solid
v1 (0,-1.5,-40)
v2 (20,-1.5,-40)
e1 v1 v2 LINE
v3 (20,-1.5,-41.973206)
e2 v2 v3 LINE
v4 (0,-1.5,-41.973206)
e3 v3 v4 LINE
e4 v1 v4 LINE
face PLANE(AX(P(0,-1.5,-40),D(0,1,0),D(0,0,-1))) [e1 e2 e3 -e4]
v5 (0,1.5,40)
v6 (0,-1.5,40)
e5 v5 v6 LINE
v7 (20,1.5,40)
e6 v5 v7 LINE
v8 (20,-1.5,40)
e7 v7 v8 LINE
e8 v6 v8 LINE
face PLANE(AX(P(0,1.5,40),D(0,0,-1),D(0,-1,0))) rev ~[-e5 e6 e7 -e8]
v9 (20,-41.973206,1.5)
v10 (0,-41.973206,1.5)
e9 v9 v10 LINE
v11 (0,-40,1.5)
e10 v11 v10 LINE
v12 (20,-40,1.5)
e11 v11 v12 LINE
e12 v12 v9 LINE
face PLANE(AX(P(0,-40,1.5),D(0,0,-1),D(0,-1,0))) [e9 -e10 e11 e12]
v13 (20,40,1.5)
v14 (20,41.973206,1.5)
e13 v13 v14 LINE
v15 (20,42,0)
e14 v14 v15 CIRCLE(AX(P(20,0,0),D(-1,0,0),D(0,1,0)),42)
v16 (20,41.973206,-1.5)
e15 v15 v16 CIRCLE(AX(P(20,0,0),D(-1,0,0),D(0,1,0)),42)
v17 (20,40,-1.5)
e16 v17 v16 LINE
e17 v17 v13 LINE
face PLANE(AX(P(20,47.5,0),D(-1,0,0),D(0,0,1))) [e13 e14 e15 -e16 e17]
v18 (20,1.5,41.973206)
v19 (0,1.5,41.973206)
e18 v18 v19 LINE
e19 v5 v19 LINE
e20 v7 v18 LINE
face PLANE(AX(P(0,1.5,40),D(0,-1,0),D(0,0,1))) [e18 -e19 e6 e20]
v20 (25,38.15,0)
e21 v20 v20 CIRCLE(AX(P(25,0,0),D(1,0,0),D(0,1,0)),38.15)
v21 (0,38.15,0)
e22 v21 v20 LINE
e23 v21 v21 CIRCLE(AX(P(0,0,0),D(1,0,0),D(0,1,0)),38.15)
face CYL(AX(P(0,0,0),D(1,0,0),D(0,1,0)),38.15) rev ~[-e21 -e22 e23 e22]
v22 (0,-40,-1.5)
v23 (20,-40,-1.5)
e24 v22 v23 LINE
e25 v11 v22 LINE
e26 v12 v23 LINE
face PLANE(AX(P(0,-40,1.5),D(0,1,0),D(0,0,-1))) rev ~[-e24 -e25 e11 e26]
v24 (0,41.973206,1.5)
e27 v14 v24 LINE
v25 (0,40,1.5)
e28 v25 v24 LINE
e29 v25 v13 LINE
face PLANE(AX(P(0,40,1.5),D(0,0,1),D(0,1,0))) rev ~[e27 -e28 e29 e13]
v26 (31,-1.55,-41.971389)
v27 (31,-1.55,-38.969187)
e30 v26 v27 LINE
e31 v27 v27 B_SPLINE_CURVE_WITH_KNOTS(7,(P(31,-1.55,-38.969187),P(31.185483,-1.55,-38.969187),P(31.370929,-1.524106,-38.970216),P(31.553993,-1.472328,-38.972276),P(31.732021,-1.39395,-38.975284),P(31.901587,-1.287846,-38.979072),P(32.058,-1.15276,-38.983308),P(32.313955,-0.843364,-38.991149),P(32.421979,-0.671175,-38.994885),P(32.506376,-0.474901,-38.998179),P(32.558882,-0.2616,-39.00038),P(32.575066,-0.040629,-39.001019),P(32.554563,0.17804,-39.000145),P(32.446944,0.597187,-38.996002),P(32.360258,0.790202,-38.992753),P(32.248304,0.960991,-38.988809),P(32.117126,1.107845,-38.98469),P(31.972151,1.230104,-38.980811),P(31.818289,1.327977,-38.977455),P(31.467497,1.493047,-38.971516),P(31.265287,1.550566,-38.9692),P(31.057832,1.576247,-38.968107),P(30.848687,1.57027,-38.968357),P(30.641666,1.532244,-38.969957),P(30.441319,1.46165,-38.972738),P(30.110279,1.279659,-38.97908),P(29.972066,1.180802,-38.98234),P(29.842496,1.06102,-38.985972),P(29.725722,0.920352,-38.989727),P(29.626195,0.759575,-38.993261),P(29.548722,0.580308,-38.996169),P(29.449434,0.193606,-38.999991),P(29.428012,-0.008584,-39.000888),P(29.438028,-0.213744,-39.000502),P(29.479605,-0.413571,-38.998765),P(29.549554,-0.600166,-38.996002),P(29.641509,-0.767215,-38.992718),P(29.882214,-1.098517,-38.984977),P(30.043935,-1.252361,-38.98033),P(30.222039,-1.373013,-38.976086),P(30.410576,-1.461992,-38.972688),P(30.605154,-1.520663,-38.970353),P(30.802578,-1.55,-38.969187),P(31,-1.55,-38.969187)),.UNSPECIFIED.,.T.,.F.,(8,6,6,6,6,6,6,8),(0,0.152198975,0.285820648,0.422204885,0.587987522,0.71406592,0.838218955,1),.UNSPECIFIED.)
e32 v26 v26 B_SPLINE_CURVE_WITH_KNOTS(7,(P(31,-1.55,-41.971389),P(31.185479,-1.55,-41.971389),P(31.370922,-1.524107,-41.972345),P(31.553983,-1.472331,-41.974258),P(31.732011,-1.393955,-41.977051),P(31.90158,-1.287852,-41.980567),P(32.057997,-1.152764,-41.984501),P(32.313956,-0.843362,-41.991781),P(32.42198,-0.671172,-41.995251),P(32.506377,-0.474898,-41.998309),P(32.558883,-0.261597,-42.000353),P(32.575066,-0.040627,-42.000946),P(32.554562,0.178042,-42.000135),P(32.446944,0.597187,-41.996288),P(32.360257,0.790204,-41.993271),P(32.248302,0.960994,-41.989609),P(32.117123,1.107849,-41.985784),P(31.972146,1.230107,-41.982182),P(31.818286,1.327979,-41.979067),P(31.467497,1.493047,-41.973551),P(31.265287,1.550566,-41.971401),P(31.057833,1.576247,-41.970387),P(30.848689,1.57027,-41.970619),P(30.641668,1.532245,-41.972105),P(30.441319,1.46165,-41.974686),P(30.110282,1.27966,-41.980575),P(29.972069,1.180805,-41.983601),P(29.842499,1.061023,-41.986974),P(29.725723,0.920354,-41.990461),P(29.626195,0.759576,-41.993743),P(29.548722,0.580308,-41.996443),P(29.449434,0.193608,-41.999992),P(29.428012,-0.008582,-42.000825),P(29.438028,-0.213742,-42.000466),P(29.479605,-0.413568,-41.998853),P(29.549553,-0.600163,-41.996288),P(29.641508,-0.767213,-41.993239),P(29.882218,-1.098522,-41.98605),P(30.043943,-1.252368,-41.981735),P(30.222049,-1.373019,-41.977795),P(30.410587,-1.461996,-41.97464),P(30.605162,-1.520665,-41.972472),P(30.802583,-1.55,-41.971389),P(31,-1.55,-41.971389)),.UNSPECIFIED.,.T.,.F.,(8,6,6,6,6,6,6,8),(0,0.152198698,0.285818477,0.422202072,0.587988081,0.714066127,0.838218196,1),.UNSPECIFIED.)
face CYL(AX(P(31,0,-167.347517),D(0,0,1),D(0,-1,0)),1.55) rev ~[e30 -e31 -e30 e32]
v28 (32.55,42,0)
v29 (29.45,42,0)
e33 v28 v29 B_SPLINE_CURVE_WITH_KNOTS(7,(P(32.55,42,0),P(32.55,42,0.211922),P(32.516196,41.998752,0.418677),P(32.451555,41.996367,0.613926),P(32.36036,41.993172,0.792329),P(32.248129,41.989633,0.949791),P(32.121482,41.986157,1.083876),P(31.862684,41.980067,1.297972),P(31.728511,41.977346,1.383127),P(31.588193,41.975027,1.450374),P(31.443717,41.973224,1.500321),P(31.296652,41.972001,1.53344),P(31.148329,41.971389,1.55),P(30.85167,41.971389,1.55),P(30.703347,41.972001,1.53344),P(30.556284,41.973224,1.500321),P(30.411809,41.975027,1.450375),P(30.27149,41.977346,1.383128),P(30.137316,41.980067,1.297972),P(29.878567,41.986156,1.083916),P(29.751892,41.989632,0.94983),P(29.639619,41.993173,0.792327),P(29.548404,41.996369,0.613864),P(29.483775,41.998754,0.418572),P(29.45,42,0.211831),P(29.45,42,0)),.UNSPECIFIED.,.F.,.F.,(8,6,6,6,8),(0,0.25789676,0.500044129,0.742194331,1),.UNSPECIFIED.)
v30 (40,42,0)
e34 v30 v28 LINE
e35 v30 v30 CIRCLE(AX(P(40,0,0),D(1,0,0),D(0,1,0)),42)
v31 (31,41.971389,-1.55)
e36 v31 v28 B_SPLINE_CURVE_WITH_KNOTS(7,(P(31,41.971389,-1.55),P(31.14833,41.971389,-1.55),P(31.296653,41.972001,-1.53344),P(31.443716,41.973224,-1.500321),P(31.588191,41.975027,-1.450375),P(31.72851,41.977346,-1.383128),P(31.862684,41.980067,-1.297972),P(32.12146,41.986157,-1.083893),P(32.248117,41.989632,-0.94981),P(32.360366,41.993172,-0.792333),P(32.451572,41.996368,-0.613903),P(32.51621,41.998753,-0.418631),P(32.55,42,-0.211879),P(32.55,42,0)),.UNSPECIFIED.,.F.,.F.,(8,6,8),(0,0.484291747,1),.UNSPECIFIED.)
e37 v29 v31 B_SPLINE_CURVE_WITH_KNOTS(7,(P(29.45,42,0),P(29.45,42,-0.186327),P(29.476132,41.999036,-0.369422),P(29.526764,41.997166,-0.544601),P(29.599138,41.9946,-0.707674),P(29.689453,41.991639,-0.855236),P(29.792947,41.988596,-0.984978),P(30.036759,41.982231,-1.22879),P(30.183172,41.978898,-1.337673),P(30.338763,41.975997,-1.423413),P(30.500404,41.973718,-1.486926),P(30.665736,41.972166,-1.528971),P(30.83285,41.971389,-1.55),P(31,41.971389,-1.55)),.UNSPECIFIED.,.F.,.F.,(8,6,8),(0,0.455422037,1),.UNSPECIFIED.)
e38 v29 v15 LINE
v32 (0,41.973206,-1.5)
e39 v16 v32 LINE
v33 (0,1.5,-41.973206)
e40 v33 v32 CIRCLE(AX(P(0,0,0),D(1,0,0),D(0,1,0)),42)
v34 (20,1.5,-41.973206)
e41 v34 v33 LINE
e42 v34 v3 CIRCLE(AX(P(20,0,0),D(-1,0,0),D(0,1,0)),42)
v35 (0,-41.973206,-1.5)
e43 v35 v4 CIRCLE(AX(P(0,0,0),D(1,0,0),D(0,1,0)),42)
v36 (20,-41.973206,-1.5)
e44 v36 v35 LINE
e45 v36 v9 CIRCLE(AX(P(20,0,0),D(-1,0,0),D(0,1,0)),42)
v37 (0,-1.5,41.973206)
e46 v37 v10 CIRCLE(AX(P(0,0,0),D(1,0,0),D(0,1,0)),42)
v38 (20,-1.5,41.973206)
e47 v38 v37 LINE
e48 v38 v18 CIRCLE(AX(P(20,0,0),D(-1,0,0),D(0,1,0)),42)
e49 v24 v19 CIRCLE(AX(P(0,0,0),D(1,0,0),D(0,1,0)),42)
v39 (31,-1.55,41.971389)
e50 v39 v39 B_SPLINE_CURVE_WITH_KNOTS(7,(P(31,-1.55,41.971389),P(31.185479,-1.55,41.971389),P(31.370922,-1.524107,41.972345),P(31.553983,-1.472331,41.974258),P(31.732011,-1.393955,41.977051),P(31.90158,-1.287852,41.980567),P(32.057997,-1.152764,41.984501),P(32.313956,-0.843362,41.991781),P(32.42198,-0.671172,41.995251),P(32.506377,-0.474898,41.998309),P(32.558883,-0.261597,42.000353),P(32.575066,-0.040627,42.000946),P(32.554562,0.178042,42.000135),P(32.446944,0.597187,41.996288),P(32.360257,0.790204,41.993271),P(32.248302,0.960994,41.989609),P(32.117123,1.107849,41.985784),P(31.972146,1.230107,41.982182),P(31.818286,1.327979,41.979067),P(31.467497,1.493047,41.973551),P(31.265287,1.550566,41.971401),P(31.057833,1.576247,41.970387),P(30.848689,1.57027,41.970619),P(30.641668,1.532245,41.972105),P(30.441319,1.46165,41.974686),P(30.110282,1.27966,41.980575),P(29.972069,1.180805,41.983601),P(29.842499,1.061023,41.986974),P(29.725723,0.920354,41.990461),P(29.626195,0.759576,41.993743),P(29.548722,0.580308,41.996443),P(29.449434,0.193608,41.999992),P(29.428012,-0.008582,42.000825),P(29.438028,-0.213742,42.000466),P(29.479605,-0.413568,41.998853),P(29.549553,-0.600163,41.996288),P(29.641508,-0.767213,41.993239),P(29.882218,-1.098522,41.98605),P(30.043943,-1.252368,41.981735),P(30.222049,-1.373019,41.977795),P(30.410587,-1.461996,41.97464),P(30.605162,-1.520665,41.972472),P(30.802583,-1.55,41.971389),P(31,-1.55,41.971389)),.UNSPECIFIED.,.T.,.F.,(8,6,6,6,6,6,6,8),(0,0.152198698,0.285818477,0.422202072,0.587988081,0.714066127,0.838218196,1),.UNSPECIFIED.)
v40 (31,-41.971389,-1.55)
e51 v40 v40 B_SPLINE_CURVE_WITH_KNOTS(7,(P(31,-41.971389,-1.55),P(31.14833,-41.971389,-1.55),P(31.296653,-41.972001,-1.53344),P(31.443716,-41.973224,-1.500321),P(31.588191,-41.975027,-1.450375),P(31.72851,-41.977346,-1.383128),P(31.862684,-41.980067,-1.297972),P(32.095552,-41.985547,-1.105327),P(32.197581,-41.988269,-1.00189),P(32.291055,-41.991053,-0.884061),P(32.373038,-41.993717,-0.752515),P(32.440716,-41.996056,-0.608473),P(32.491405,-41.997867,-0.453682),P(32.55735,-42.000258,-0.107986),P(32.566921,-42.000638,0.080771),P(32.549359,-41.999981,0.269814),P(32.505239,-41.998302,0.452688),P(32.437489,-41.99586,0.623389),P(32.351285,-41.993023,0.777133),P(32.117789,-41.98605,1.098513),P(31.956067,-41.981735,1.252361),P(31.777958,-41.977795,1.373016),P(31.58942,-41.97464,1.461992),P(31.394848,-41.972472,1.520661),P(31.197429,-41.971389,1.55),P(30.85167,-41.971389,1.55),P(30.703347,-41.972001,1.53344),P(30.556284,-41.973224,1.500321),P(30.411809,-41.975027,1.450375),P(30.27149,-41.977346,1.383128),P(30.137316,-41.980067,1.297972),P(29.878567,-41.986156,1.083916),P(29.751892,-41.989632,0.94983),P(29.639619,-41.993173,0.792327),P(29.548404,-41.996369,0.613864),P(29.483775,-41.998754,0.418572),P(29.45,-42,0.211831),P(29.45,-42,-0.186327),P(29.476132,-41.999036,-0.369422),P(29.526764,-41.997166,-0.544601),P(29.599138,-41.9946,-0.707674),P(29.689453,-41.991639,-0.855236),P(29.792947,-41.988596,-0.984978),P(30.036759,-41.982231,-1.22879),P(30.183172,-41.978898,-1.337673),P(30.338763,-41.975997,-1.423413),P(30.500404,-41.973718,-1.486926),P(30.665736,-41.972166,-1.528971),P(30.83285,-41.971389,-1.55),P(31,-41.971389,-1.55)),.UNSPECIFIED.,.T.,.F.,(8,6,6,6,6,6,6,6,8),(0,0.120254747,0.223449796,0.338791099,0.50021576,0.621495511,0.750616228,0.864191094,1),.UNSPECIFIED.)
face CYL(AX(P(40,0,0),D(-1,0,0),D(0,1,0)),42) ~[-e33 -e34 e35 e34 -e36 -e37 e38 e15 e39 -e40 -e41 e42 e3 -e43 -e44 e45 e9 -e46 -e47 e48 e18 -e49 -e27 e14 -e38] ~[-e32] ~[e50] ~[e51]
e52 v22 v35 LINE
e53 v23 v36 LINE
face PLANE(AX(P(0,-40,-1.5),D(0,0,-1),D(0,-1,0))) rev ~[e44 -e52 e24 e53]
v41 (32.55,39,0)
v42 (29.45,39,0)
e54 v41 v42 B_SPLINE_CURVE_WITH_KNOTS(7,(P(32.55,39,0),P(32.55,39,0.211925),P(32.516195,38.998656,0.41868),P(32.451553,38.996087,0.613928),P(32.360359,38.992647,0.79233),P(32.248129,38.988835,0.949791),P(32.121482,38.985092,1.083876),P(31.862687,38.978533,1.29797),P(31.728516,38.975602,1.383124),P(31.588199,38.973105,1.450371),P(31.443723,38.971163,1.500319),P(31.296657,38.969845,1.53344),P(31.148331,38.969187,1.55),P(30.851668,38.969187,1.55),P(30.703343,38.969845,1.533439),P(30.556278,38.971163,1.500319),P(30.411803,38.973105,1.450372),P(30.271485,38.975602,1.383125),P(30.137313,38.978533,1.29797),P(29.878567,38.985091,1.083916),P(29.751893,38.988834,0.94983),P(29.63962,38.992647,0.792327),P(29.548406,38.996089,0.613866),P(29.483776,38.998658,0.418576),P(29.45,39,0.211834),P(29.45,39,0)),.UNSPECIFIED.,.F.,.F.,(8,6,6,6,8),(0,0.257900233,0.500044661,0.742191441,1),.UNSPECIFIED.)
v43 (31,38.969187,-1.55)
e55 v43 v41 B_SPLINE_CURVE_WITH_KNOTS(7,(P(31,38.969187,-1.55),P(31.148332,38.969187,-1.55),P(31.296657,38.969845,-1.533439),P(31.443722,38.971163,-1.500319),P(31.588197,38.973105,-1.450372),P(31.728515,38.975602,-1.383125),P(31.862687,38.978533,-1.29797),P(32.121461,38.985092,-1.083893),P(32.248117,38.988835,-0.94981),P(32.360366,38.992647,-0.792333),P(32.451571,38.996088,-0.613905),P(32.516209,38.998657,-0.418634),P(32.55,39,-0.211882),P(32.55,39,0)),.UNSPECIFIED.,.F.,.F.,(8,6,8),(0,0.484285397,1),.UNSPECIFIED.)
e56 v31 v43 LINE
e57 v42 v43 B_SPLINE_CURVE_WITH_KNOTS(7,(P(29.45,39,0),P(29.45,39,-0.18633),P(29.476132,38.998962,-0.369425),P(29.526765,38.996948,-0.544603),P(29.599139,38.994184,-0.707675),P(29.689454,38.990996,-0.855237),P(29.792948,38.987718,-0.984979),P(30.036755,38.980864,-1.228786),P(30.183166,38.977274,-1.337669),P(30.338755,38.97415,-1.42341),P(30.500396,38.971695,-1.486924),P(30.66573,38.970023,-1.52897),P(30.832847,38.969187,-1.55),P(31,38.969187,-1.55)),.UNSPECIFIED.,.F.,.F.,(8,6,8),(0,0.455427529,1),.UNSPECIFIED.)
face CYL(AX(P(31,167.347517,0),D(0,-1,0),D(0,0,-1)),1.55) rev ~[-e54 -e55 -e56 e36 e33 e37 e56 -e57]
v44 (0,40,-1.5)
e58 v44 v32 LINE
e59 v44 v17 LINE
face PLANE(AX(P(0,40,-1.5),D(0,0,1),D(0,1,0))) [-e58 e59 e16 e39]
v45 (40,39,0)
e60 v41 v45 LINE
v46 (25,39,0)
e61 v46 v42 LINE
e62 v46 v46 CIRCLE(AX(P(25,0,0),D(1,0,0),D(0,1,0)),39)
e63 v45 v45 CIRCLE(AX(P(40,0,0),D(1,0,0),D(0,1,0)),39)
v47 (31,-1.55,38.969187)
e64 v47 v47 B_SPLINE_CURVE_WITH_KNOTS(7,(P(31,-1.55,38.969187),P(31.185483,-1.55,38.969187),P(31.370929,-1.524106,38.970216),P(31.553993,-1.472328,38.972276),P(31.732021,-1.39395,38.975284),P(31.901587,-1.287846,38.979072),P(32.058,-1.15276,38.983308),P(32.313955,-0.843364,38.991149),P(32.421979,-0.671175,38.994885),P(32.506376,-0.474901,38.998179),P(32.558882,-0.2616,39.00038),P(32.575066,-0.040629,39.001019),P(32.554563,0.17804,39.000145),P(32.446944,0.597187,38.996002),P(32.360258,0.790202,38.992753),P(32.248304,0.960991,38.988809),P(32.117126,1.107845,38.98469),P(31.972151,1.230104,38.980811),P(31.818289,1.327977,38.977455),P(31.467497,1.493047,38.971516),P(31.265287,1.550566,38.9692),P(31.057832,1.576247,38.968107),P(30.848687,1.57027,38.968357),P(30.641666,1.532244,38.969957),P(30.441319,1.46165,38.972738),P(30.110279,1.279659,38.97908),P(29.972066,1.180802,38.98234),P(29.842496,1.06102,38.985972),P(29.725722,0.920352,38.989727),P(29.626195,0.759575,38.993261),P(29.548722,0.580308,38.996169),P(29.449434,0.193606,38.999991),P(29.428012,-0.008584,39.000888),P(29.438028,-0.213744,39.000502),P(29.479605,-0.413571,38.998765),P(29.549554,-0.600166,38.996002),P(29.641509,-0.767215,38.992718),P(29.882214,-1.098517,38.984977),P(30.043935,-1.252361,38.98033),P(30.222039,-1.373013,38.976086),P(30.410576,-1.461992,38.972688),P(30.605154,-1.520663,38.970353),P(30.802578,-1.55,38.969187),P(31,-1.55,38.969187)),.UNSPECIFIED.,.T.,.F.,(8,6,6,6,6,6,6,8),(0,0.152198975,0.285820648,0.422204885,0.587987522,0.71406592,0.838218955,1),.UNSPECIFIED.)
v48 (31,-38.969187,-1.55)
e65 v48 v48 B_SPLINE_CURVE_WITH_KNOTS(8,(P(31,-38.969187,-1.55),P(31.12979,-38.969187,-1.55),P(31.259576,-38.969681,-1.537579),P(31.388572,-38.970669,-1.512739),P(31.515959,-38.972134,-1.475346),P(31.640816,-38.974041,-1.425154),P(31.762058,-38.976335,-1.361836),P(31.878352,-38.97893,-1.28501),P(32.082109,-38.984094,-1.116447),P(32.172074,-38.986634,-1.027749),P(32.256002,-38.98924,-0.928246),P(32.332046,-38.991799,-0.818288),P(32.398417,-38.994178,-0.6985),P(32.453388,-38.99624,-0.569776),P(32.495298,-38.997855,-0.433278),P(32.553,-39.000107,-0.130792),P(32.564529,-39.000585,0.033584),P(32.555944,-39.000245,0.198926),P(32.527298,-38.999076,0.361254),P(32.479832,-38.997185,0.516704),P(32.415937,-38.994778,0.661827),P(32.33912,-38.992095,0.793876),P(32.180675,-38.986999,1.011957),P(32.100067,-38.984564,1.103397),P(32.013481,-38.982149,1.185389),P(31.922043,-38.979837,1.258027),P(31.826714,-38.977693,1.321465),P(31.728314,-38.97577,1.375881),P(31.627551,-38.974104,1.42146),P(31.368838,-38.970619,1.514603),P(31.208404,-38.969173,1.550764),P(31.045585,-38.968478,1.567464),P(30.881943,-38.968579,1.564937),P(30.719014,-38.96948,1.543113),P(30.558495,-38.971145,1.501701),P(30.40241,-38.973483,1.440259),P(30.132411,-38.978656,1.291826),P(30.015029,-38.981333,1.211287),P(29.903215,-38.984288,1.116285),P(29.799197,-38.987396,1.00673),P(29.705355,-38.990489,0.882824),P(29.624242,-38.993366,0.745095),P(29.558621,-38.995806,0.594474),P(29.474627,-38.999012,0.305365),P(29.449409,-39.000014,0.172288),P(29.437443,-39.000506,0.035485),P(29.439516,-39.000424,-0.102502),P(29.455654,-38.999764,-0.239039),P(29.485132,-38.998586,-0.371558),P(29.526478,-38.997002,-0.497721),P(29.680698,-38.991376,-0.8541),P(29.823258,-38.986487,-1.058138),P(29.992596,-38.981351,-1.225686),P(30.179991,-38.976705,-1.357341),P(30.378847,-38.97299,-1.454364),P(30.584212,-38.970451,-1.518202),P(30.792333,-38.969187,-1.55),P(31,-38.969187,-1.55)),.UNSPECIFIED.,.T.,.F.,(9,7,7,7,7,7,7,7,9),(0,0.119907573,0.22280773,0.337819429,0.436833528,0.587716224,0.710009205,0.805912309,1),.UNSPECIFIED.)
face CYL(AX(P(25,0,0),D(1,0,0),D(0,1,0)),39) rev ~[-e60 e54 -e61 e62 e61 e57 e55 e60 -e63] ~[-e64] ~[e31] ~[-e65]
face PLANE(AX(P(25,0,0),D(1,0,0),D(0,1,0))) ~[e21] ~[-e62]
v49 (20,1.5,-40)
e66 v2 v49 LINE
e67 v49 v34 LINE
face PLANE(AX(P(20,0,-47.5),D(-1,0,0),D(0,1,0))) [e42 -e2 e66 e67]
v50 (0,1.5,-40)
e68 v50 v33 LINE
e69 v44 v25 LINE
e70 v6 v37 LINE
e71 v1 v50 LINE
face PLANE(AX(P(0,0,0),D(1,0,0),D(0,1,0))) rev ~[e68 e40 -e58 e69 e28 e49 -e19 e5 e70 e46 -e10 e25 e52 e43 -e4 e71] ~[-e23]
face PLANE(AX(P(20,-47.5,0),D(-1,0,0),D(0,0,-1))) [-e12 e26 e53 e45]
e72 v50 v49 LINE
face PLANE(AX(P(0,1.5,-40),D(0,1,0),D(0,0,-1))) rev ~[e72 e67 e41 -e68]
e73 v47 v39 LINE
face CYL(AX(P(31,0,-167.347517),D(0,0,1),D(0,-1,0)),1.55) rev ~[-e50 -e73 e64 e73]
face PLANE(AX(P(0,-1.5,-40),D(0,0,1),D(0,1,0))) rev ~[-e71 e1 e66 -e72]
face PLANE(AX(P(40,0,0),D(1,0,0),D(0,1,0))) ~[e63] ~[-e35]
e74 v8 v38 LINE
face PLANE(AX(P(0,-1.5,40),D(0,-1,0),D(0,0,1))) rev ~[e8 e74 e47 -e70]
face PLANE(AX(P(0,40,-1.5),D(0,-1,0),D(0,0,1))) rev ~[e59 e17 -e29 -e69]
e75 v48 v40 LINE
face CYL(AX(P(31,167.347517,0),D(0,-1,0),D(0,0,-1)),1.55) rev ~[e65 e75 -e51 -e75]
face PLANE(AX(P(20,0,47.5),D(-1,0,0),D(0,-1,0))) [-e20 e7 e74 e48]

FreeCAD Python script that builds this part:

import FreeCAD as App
import Part
import Sketcher
from FreeCAD import Vector

doc = App.newDocument("Part")
body = doc.addObject("PartDesign::Body", "Body")

sketch1 = doc.addObject("Sketcher::SketchObject", "Sketch")
body.addObject(sketch1)
sketch1.AttachmentSupport = (doc.XY_Plane, [""])
sketch1.MapMode = "FlatFace"
sketch1.addGeometry(Part.LineSegment(Vector(0, 38.1, 0), Vector(25, 38.1, 0)), False)
sketch1.addGeometry(Part.LineSegment(Vector(25, 38.1, 0), Vector(25, 39, 0)), False)
sketch1.addGeometry(Part.LineSegment(Vector(25, 39, 0), Vector(40, 39, 0)), False)
sketch1.addGeometry(Part.LineSegment(Vector(40, 39, 0), Vector(40, 42, 0)), False)
sketch1.addGeometry(Part.LineSegment(Vector(40, 42, 0), Vector(0, 42, 0)), False)
sketch1.addGeometry(Part.LineSegment(Vector(0, 42, 0), Vector(0, 38.1, 0)), False)
sketch1.addConstraint(Sketcher.Constraint("Coincident", 0, 2, 1, 1))
sketch1.addConstraint(Sketcher.Constraint("Coincident", 1, 2, 2, 1))
sketch1.addConstraint(Sketcher.Constraint("Coincident", 2, 2, 3, 1))
sketch1.addConstraint(Sketcher.Constraint("Coincident", 3, 2, 4, 1))
sketch1.addConstraint(Sketcher.Constraint("Coincident", 4, 2, 5, 1))
sketch1.addConstraint(Sketcher.Constraint("Coincident", 5, 2, 0, 1))
sketch1.addConstraint(Sketcher.Constraint("Horizontal", 0))
sketch1.addConstraint(Sketcher.Constraint("Vertical", 1))
sketch1.addConstraint(Sketcher.Constraint("Horizontal", 2))
sketch1.addConstraint(Sketcher.Constraint("Vertical", 3))
sketch1.addConstraint(Sketcher.Constraint("Horizontal", 4))
sketch1.addConstraint(Sketcher.Constraint("Vertical", 5))
sketch1.addConstraint(Sketcher.Constraint("PointOnObject", 4, 2, -2))
sketch1.addConstraint(Sketcher.Constraint("DistanceX", 0, 1, 0, 2, 25.0))
sketch1.addConstraint(Sketcher.Constraint("DistanceX", 2, 1, 2, 2, 15.0))
sketch1.addConstraint(Sketcher.Constraint("DistanceY", 3, 1, 3, 2, 3.0))
sketch1.addConstraint(Sketcher.Constraint("DistanceY", -1, 1, 1, 2, 39.0))
sketch1.addConstraint(Sketcher.Constraint("DistanceY", 1, 1, 1, 2, 0.85))
revolution = doc.addObject("PartDesign::Revolution", "Revolution")
body.addObject(revolution)
revolution.Profile = sketch1
revolution.ReferenceAxis = (sketch1, ["H_Axis"])
revolution.Angle = 360

sketch2 = doc.addObject("Sketcher::SketchObject", "Sketch001")
body.addObject(sketch2)
sketch2.AttachmentSupport = (doc.XZ_Plane, [""])
sketch2.MapMode = "FlatFace"
sketch2.AttachmentOffset = App.Placement(Vector(0, 0, -42), App.Rotation())
sketch2.addGeometry(Part.Circle(Vector(31, 0, 0), Vector(0, 0, 1), 1.6), False)
sketch2.addConstraint(Sketcher.Constraint("PointOnObject", 0, 3, -1))
sketch2.addConstraint(Sketcher.Constraint("Diameter", 0, 3.1))
sketch2.addConstraint(Sketcher.Constraint("DistanceX", -1, 1, 0, 3, 31.0))
doc.recompute()
hole = doc.addObject("PartDesign::Hole", "Hole")
body.addObject(hole)
hole.Profile = sketch2
hole.ThreadType = "None"
hole.Diameter = 3.1
hole.DepthType = "ThroughAll"
hole.Reversed = True
doc.recompute()

polarpattern = doc.addObject("PartDesign::PolarPattern", "PolarPattern")
body.addObject(polarpattern)
polarpattern.Originals = [hole]
polarpattern.Axis = (doc.X_Axis, [""])
polarpattern.Angle = 90
polarpattern.Occurrences = 2
polarpattern.Reversed = True
body.Tip = polarpattern

sketch3 = doc.addObject("Sketcher::SketchObject", "Sketch002")
body.addObject(sketch3)
sketch3.AttachmentSupport = (doc.YZ_Plane, [""])
sketch3.MapMode = "FlatFace"
sketch3.addGeometry(Part.LineSegment(Vector(55, -1.5, 0), Vector(40, -1.5, 0)), False)
sketch3.addGeometry(Part.LineSegment(Vector(40, -1.5, 0), Vector(40, 1.5, 0)), False)
sketch3.addGeometry(Part.LineSegment(Vector(40, 1.5, 0), Vector(55, 1.5, 0)), False)
sketch3.addGeometry(Part.LineSegment(Vector(55, 1.5, 0), Vector(55, -1.5, 0)), False)
sketch3.addConstraint(Sketcher.Constraint("Coincident", 0, 2, 1, 1))
sketch3.addConstraint(Sketcher.Constraint("Coincident", 1, 2, 2, 1))
sketch3.addConstraint(Sketcher.Constraint("Coincident", 2, 2, 3, 1))
sketch3.addConstraint(Sketcher.Constraint("Coincident", 3, 2, 0, 1))
sketch3.addConstraint(Sketcher.Constraint("Horizontal", 0))
sketch3.addConstraint(Sketcher.Constraint("Vertical", 1))
sketch3.addConstraint(Sketcher.Constraint("Horizontal", 2))
sketch3.addConstraint(Sketcher.Constraint("Vertical", 3))
sketch3.addConstraint(Sketcher.Constraint("DistanceX", 0, 2, 0, 1, 15.0))
sketch3.addConstraint(Sketcher.Constraint("DistanceY", 1, 1, 1, 2, 3.0))
sketch3.addConstraint(Sketcher.Constraint("DistanceX", -1, 1, 0, 2, 40.0))
sketch3.addConstraint(Sketcher.Constraint("DistanceY", 0, 2, -1, 1, 1.5))
pocket1 = doc.addObject("PartDesign::Pocket", "Pocket")
body.addObject(pocket1)
pocket1.Profile = sketch3
pocket1.Length = 20
pocket1.Reversed = True
doc.recompute()

polarpattern2 = doc.addObject("PartDesign::PolarPattern", "PolarPattern001")
body.addObject(polarpattern2)
polarpattern2.Originals = [pocket1]
polarpattern2.Axis = (doc.X_Axis, [""])
polarpattern2.Angle = 360
polarpattern2.Occurrences = 4
body.Tip = polarpattern2

doc.recompute()
